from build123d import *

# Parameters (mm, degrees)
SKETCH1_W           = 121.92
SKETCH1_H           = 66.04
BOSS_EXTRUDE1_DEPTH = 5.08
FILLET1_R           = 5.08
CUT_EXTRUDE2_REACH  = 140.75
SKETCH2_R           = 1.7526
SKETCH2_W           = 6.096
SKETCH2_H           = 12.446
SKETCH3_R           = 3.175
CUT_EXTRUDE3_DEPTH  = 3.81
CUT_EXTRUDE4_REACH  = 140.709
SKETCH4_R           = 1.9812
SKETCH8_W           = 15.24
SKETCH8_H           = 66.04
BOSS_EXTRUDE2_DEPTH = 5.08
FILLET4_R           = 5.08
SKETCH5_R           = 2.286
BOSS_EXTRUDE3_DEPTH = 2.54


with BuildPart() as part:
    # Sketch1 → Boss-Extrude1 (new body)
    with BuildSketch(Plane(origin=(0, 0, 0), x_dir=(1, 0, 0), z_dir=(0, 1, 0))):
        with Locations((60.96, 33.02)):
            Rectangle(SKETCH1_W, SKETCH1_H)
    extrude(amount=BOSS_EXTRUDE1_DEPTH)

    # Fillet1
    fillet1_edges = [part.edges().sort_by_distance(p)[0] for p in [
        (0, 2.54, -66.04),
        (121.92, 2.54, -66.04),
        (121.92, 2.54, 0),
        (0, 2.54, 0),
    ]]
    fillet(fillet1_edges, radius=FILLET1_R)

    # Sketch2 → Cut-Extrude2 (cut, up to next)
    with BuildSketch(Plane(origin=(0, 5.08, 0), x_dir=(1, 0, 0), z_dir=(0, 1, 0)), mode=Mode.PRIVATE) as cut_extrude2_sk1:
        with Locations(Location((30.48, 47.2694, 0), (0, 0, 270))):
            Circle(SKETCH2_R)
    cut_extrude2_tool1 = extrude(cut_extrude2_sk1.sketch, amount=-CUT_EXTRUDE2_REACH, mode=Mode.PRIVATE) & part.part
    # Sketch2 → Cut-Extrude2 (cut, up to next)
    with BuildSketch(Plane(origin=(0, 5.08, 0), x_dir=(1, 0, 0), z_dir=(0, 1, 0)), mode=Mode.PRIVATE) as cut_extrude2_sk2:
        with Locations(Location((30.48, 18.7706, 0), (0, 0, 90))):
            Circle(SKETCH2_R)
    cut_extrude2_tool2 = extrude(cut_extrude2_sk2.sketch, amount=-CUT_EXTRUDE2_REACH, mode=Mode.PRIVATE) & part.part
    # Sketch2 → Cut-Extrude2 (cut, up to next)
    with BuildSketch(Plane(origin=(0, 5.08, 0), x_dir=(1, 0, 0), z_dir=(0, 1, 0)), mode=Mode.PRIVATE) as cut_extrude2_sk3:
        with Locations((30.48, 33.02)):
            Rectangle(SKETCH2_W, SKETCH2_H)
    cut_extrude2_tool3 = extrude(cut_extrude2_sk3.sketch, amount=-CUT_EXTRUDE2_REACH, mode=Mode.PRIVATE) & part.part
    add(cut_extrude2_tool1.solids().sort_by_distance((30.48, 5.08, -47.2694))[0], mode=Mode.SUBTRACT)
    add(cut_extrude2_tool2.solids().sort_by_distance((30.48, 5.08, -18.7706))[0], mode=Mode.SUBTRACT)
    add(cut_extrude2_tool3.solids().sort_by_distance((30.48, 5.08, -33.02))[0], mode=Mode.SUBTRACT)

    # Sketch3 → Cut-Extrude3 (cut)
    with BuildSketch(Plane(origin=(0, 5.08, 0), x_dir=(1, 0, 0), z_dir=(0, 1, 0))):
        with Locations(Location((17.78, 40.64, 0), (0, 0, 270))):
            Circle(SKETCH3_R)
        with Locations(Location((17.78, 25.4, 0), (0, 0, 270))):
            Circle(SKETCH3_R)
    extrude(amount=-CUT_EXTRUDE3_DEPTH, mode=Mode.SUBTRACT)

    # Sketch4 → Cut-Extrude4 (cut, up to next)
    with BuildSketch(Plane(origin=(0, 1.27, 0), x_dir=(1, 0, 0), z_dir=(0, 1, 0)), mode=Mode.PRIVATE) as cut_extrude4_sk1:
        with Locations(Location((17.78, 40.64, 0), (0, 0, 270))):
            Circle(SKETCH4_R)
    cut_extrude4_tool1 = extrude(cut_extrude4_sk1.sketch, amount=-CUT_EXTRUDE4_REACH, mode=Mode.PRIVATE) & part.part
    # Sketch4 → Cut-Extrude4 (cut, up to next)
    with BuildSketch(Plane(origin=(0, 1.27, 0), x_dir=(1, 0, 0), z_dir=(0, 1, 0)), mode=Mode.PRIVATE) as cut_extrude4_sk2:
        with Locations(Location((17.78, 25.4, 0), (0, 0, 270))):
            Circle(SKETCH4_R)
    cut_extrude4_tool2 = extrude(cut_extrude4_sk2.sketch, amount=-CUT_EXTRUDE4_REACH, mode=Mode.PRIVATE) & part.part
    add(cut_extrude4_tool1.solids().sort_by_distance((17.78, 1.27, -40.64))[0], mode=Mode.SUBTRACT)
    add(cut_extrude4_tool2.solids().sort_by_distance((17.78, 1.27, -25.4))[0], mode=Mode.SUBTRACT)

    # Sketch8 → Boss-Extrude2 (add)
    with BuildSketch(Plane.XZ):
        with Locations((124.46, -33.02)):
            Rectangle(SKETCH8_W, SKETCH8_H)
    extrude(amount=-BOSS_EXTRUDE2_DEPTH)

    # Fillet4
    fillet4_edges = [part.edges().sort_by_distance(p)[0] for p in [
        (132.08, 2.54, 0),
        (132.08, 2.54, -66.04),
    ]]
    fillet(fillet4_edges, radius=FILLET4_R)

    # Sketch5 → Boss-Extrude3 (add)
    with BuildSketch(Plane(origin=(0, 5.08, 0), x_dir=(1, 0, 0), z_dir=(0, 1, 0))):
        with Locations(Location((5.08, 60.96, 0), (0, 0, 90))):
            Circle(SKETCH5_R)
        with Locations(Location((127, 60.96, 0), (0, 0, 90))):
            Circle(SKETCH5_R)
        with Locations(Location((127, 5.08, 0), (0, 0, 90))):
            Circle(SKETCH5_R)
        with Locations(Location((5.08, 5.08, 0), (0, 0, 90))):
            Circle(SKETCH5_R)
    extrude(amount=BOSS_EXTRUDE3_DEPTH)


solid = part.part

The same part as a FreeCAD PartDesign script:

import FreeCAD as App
import Part
import Sketcher

V = App.Vector
Q = App.Units.Quantity


def edges_at(feature, points):
    """Names of the edges that pass closest to the given points."""
    edges = feature.Shape.Edges
    near = lambda p: min(range(len(edges)), key=lambda i: edges[i].distToShape(Part.Vertex(*p))[0])
    return sorted({f"Edge{near(p) + 1}" for p in points})


def add_polygon(sketch, points):
    """Adds a closed chain of lines whose ends are joined by coincident constraints."""
    first, n = sketch.GeometryCount, len(points)
    for a, b in zip(points, points[1:] + points[:1]):
        sketch.addGeometry(Part.LineSegment(App.Vector(*a, 0), App.Vector(*b, 0)), False)
    for i in range(n):
        sketch.addConstraint(Sketcher.Constraint("Coincident", first + i, 2, first + (i + 1) % n, 1))

doc = App.newDocument("Part")
body = doc.addObject("PartDesign::Body", "Body")

# Sketch on XZ plane
sketch1 = body.newObject("Sketcher::SketchObject", "Sketch")
sketch1.AttachmentSupport = (doc.getObject("XZ_Plane"), [""])
sketch1.MapMode = "FlatFace"
add_polygon(sketch1, [(0, -66), (0, 0), (122, 0), (122, -66)])  # lines 0-3
sketch1.addConstraint(Sketcher.Constraint("Vertical", 0))
sketch1.addConstraint(Sketcher.Constraint("Horizontal", 1))
sketch1.addConstraint(Sketcher.Constraint("Vertical", 2))
sketch1.addConstraint(Sketcher.Constraint("Horizontal", 3))
sketch1.addConstraint(Sketcher.Constraint("Coincident", 0, 2, -1, 1))
sketch1.addConstraint(Sketcher.Constraint("DistanceX", 1, 1, 1, 2, Q("4.8 in")))
sketch1.addConstraint(Sketcher.Constraint("DistanceY", 0, 1, 0, 2, Q("2.6 in")))
pad1 = body.newObject("PartDesign::Pad", "Pad")
pad1.Profile = sketch1
pad1.Length = Q("0.2 in")
pad1.Reversed = True
doc.recompute()

fillet = body.newObject("PartDesign::Fillet", "Fillet")
fillet.Base = (pad1, edges_at(pad1, [
    (0, 2.54, -66.04),
    (121.92, 2.54, -66.04),
    (121.92, 2.54, 0),
    (0, 2.54, 0),
]))
fillet.Radius = Q("0.2 in")

# Sketch on XZ plane
sketch2 = body.newObject("Sketcher::SketchObject", "Sketch001")
sketch2.AttachmentSupport = (doc.getObject("XZ_Plane"), [""])
sketch2.MapMode = "FlatFace"
sketch2.AttachmentOffset = App.Placement(V(0, 0, -0.2 * 25.4), App.Rotation())
sketch2.addGeometry(Part.Circle(V(30.5, -47.3, 0), V(0, 0, 1), 1.8), False)
sketch2.addConstraint(Sketcher.Constraint("Diameter", 0, Q("0.138 in")))
sketch2.addConstraint(Sketcher.Constraint("DistanceX", -1, 1, 0, 3, Q("1.2 in")))
sketch2.addConstraint(Sketcher.Constraint("DistanceY", 0, 3, -1, 1, Q("1.861 in")))
pocket1 = body.newObject("PartDesign::Pocket", "Pocket")
pocket1.Profile = sketch2
pocket1.Type = "UpToFirst"
pocket1.Reversed = True

# Sketch on XZ plane
sketch3 = body.newObject("Sketcher::SketchObject", "Sketch002")
sketch3.AttachmentSupport = (doc.getObject("XZ_Plane"), [""])
sketch3.MapMode = "FlatFace"
sketch3.AttachmentOffset = App.Placement(V(0, 0, -0.2 * 25.4), App.Rotation())
sketch3.addGeometry(Part.Circle(V(30.5, -18.8, 0), V(0, 0, 1), 1.8), False)
sketch3.addConstraint(Sketcher.Constraint("Diameter", 0, Q("0.138 in")))
sketch3.addConstraint(Sketcher.Constraint("DistanceX", -1, 1, 0, 3, Q("1.2 in")))
sketch3.addConstraint(Sketcher.Constraint("DistanceY", 0, 3, -1, 1, Q("0.739 in")))
pocket2 = body.newObject("PartDesign::Pocket", "Pocket001")
pocket2.Profile = sketch3
pocket2.Type = "UpToFirst"
pocket2.Reversed = True

# Sketch on XZ plane
sketch4 = body.newObject("Sketcher::SketchObject", "Sketch003")
sketch4.AttachmentSupport = (doc.getObject("XZ_Plane"), [""])
sketch4.MapMode = "FlatFace"
sketch4.AttachmentOffset = App.Placement(V(0, 0, -0.2 * 25.4), App.Rotation())
add_polygon(sketch4, [(27, -39), (27, -27), (34, -27), (34, -39)])  # lines 0-3
sketch4.addConstraint(Sketcher.Constraint("Vertical", 0))
sketch4.addConstraint(Sketcher.Constraint("Horizontal", 1))
sketch4.addConstraint(Sketcher.Constraint("Vertical", 2))
sketch4.addConstraint(Sketcher.Constraint("Horizontal", 3))
sketch4.addConstraint(Sketcher.Constraint("DistanceX", 1, 1, 1, 2, Q("0.24 in")))
sketch4.addConstraint(Sketcher.Constraint("DistanceY", 0, 1, 0, 2, Q("0.49 in")))
sketch4.addConstraint(Sketcher.Constraint("DistanceX", -1, 1, 0, 2, Q("1.08 in")))
sketch4.addConstraint(Sketcher.Constraint("DistanceY", 0, 2, -1, 1, Q("1.055 in")))
pocket3 = body.newObject("PartDesign::Pocket", "Pocket002")
pocket3.Profile = sketch4
pocket3.Type = "UpToFirst"
pocket3.Reversed = True

# Sketch on XZ plane
sketch5 = body.newObject("Sketcher::SketchObject", "Sketch004")
sketch5.AttachmentSupport = (doc.getObject("XZ_Plane"), [""])
sketch5.MapMode = "FlatFace"
sketch5.AttachmentOffset = App.Placement(V(0, 0, -0.2 * 25.4), App.Rotation())
sketch5.addGeometry(Part.Circle(V(17.8, -40.6, 0), V(0, 0, 1), 3.2), False)
sketch5.addGeometry(Part.Circle(V(17.8, -25.4, 0), V(0, 0, 1), 3.2), False)
sketch5.addConstraint(Sketcher.Constraint("Equal", 0, 1))
sketch5.addConstraint(Sketcher.Constraint("Vertical", 0, 3, 1, 3))
sketch5.addConstraint(Sketcher.Constraint("Diameter", 0, Q("0.25 in")))
sketch5.addConstraint(Sketcher.Constraint("DistanceY", 1, 3, -1, 1, Q("1 in")))
sketch5.addConstraint(Sketcher.Constraint("DistanceX", -1, 1, 0, 3, Q("0.7 in")))
sketch5.addConstraint(Sketcher.Constraint("DistanceY", 0, 3, -1, 1, Q("1.6 in")))
pocket4 = body.newObject("PartDesign::Pocket", "Pocket003")
pocket4.Profile = sketch5
pocket4.Length = Q("0.15 in")
pocket4.Reversed = True

# Sketch on XZ plane
sketch6 = body.newObject("Sketcher::SketchObject", "Sketch005")
sketch6.AttachmentSupport = (doc.getObject("XZ_Plane"), [""])
sketch6.MapMode = "FlatFace"
sketch6.AttachmentOffset = App.Placement(V(0, 0, -0.05 * 25.4), App.Rotation())
sketch6.addGeometry(Part.Circle(V(17.8, -40.6, 0), V(0, 0, 1), 2), False)
sketch6.addConstraint(Sketcher.Constraint("Diameter", 0, Q("0.156 in")))
sketch6.addConstraint(Sketcher.Constraint("DistanceX", -1, 1, 0, 3, Q("0.7 in")))
sketch6.addConstraint(Sketcher.Constraint("DistanceY", 0, 3, -1, 1, Q("1.6 in")))
pocket5 = body.newObject("PartDesign::Pocket", "Pocket004")
pocket5.Profile = sketch6
pocket5.Type = "UpToFirst"
pocket5.Reversed = True

# Sketch on XZ plane
sketch7 = body.newObject("Sketcher::SketchObject", "Sketch006")
sketch7.AttachmentSupport = (doc.getObject("XZ_Plane"), [""])
sketch7.MapMode = "FlatFace"
sketch7.AttachmentOffset = App.Placement(V(0, 0, -0.05 * 25.4), App.Rotation())
sketch7.addGeometry(Part.Circle(V(17.8, -25.4, 0), V(0, 0, 1), 2), False)
sketch7.addConstraint(Sketcher.Constraint("Diameter", 0, Q("0.156 in")))
sketch7.addConstraint(Sketcher.Constraint("DistanceY", 0, 3, -1, 1, Q("1 in")))
sketch7.addConstraint(Sketcher.Constraint("DistanceX", -1, 1, 0, 3, Q("0.7 in")))
pocket6 = body.newObject("PartDesign::Pocket", "Pocket005")
pocket6.Profile = sketch7
pocket6.Type = "UpToFirst"
pocket6.Reversed = True

# Sketch on XZ plane
sketch8 = body.newObject("Sketcher::SketchObject", "Sketch007")
sketch8.AttachmentSupport = (doc.getObject("XZ_Plane"), [""])
sketch8.MapMode = "FlatFace"
add_polygon(sketch8, [(117, 0), (117, -66), (132, -66), (132, 0)])  # lines 0-3
sketch8.addConstraint(Sketcher.Constraint("Vertical", 0))
sketch8.addConstraint(Sketcher.Constraint("Horizontal", 1))
sketch8.addConstraint(Sketcher.Constraint("Vertical", 2))
sketch8.addConstraint(Sketcher.Constraint("Horizontal", 3))
sketch8.addConstraint(Sketcher.Constraint("PointOnObject", 2, 2, -1))
sketch8.addConstraint(Sketcher.Constraint("DistanceX", 1, 1, 1, 2, Q("0.6 in")))
sketch8.addConstraint(Sketcher.Constraint("DistanceY", 0, 2, 0, 1, Q("2.6 in")))
sketch8.addConstraint(Sketcher.Constraint("DistanceX", -1, 1, 0, 2, Q("4.6 in")))
pad2 = body.newObject("PartDesign::Pad", "Pad001")
pad2.Profile = sketch8
pad2.Length = Q("0.2 in")
pad2.Reversed = True
doc.recompute()

fillet2 = body.newObject("PartDesign::Fillet", "Fillet001")
fillet2.Base = (pad2, edges_at(pad2, [(132.08, 2.54, 0), (132.08, 2.54, -66.04)]))
fillet2.Radius = Q("0.2 in")

# Sketch on XZ plane
sketch9 = body.newObject("Sketcher::SketchObject", "Sketch008")
sketch9.AttachmentSupport = (doc.getObject("XZ_Plane"), [""])
sketch9.MapMode = "FlatFace"
sketch9.AttachmentOffset = App.Placement(V(0, 0, -0.2 * 25.4), App.Rotation())
sketch9.addGeometry(Part.Circle(V(5.1, -61, 0), V(0, 0, 1), 2.3), False)
sketch9.addGeometry(Part.Circle(V(127, -61, 0), V(0, 0, 1), 2.3), False)
sketch9.addGeometry(Part.Circle(V(127, -5.1, 0), V(0, 0, 1), 2.3), False)
sketch9.addGeometry(Part.Circle(V(5.1, -5.1, 0), V(0, 0, 1), 2.3), False)
sketch9.addConstraint(Sketcher.Constraint("Equal", 0, 1))
sketch9.addConstraint(Sketcher.Constraint("Equal", 1, 2))
sketch9.addConstraint(Sketcher.Constraint("Equal", 2, 3))
sketch9.addConstraint(Sketcher.Constraint("Horizontal", 0, 3, 1, 3))
sketch9.addConstraint(Sketcher.Constraint("Horizontal", 2, 3, 3, 3))
sketch9.addConstraint(Sketcher.Constraint("Vertical", 1, 3, 2, 3))
sketch9.addConstraint(Sketcher.Constraint("Vertical", 0, 3, 3, 3))
sketch9.addConstraint(Sketcher.Constraint("Diameter", 0, Q("0.18 in")))
sketch9.addConstraint(Sketcher.Constraint("DistanceX", -1, 1, 1, 3, Q("5 in")))
sketch9.addConstraint(Sketcher.Constraint("DistanceX", -1, 1, 0, 3, Q("0.2 in")))
sketch9.addConstraint(Sketcher.Constraint("DistanceY", 0, 3, -1, 1, Q("2.4 in")))
sketch9.addConstraint(Sketcher.Constraint("DistanceY", 2, 3, -1, 1, Q("0.2 in")))
pad3 = body.newObject("PartDesign::Pad", "Pad002")
pad3.Profile = sketch9
pad3.Length = Q("0.1 in")
pad3.Reversed = True

doc.recompute()
